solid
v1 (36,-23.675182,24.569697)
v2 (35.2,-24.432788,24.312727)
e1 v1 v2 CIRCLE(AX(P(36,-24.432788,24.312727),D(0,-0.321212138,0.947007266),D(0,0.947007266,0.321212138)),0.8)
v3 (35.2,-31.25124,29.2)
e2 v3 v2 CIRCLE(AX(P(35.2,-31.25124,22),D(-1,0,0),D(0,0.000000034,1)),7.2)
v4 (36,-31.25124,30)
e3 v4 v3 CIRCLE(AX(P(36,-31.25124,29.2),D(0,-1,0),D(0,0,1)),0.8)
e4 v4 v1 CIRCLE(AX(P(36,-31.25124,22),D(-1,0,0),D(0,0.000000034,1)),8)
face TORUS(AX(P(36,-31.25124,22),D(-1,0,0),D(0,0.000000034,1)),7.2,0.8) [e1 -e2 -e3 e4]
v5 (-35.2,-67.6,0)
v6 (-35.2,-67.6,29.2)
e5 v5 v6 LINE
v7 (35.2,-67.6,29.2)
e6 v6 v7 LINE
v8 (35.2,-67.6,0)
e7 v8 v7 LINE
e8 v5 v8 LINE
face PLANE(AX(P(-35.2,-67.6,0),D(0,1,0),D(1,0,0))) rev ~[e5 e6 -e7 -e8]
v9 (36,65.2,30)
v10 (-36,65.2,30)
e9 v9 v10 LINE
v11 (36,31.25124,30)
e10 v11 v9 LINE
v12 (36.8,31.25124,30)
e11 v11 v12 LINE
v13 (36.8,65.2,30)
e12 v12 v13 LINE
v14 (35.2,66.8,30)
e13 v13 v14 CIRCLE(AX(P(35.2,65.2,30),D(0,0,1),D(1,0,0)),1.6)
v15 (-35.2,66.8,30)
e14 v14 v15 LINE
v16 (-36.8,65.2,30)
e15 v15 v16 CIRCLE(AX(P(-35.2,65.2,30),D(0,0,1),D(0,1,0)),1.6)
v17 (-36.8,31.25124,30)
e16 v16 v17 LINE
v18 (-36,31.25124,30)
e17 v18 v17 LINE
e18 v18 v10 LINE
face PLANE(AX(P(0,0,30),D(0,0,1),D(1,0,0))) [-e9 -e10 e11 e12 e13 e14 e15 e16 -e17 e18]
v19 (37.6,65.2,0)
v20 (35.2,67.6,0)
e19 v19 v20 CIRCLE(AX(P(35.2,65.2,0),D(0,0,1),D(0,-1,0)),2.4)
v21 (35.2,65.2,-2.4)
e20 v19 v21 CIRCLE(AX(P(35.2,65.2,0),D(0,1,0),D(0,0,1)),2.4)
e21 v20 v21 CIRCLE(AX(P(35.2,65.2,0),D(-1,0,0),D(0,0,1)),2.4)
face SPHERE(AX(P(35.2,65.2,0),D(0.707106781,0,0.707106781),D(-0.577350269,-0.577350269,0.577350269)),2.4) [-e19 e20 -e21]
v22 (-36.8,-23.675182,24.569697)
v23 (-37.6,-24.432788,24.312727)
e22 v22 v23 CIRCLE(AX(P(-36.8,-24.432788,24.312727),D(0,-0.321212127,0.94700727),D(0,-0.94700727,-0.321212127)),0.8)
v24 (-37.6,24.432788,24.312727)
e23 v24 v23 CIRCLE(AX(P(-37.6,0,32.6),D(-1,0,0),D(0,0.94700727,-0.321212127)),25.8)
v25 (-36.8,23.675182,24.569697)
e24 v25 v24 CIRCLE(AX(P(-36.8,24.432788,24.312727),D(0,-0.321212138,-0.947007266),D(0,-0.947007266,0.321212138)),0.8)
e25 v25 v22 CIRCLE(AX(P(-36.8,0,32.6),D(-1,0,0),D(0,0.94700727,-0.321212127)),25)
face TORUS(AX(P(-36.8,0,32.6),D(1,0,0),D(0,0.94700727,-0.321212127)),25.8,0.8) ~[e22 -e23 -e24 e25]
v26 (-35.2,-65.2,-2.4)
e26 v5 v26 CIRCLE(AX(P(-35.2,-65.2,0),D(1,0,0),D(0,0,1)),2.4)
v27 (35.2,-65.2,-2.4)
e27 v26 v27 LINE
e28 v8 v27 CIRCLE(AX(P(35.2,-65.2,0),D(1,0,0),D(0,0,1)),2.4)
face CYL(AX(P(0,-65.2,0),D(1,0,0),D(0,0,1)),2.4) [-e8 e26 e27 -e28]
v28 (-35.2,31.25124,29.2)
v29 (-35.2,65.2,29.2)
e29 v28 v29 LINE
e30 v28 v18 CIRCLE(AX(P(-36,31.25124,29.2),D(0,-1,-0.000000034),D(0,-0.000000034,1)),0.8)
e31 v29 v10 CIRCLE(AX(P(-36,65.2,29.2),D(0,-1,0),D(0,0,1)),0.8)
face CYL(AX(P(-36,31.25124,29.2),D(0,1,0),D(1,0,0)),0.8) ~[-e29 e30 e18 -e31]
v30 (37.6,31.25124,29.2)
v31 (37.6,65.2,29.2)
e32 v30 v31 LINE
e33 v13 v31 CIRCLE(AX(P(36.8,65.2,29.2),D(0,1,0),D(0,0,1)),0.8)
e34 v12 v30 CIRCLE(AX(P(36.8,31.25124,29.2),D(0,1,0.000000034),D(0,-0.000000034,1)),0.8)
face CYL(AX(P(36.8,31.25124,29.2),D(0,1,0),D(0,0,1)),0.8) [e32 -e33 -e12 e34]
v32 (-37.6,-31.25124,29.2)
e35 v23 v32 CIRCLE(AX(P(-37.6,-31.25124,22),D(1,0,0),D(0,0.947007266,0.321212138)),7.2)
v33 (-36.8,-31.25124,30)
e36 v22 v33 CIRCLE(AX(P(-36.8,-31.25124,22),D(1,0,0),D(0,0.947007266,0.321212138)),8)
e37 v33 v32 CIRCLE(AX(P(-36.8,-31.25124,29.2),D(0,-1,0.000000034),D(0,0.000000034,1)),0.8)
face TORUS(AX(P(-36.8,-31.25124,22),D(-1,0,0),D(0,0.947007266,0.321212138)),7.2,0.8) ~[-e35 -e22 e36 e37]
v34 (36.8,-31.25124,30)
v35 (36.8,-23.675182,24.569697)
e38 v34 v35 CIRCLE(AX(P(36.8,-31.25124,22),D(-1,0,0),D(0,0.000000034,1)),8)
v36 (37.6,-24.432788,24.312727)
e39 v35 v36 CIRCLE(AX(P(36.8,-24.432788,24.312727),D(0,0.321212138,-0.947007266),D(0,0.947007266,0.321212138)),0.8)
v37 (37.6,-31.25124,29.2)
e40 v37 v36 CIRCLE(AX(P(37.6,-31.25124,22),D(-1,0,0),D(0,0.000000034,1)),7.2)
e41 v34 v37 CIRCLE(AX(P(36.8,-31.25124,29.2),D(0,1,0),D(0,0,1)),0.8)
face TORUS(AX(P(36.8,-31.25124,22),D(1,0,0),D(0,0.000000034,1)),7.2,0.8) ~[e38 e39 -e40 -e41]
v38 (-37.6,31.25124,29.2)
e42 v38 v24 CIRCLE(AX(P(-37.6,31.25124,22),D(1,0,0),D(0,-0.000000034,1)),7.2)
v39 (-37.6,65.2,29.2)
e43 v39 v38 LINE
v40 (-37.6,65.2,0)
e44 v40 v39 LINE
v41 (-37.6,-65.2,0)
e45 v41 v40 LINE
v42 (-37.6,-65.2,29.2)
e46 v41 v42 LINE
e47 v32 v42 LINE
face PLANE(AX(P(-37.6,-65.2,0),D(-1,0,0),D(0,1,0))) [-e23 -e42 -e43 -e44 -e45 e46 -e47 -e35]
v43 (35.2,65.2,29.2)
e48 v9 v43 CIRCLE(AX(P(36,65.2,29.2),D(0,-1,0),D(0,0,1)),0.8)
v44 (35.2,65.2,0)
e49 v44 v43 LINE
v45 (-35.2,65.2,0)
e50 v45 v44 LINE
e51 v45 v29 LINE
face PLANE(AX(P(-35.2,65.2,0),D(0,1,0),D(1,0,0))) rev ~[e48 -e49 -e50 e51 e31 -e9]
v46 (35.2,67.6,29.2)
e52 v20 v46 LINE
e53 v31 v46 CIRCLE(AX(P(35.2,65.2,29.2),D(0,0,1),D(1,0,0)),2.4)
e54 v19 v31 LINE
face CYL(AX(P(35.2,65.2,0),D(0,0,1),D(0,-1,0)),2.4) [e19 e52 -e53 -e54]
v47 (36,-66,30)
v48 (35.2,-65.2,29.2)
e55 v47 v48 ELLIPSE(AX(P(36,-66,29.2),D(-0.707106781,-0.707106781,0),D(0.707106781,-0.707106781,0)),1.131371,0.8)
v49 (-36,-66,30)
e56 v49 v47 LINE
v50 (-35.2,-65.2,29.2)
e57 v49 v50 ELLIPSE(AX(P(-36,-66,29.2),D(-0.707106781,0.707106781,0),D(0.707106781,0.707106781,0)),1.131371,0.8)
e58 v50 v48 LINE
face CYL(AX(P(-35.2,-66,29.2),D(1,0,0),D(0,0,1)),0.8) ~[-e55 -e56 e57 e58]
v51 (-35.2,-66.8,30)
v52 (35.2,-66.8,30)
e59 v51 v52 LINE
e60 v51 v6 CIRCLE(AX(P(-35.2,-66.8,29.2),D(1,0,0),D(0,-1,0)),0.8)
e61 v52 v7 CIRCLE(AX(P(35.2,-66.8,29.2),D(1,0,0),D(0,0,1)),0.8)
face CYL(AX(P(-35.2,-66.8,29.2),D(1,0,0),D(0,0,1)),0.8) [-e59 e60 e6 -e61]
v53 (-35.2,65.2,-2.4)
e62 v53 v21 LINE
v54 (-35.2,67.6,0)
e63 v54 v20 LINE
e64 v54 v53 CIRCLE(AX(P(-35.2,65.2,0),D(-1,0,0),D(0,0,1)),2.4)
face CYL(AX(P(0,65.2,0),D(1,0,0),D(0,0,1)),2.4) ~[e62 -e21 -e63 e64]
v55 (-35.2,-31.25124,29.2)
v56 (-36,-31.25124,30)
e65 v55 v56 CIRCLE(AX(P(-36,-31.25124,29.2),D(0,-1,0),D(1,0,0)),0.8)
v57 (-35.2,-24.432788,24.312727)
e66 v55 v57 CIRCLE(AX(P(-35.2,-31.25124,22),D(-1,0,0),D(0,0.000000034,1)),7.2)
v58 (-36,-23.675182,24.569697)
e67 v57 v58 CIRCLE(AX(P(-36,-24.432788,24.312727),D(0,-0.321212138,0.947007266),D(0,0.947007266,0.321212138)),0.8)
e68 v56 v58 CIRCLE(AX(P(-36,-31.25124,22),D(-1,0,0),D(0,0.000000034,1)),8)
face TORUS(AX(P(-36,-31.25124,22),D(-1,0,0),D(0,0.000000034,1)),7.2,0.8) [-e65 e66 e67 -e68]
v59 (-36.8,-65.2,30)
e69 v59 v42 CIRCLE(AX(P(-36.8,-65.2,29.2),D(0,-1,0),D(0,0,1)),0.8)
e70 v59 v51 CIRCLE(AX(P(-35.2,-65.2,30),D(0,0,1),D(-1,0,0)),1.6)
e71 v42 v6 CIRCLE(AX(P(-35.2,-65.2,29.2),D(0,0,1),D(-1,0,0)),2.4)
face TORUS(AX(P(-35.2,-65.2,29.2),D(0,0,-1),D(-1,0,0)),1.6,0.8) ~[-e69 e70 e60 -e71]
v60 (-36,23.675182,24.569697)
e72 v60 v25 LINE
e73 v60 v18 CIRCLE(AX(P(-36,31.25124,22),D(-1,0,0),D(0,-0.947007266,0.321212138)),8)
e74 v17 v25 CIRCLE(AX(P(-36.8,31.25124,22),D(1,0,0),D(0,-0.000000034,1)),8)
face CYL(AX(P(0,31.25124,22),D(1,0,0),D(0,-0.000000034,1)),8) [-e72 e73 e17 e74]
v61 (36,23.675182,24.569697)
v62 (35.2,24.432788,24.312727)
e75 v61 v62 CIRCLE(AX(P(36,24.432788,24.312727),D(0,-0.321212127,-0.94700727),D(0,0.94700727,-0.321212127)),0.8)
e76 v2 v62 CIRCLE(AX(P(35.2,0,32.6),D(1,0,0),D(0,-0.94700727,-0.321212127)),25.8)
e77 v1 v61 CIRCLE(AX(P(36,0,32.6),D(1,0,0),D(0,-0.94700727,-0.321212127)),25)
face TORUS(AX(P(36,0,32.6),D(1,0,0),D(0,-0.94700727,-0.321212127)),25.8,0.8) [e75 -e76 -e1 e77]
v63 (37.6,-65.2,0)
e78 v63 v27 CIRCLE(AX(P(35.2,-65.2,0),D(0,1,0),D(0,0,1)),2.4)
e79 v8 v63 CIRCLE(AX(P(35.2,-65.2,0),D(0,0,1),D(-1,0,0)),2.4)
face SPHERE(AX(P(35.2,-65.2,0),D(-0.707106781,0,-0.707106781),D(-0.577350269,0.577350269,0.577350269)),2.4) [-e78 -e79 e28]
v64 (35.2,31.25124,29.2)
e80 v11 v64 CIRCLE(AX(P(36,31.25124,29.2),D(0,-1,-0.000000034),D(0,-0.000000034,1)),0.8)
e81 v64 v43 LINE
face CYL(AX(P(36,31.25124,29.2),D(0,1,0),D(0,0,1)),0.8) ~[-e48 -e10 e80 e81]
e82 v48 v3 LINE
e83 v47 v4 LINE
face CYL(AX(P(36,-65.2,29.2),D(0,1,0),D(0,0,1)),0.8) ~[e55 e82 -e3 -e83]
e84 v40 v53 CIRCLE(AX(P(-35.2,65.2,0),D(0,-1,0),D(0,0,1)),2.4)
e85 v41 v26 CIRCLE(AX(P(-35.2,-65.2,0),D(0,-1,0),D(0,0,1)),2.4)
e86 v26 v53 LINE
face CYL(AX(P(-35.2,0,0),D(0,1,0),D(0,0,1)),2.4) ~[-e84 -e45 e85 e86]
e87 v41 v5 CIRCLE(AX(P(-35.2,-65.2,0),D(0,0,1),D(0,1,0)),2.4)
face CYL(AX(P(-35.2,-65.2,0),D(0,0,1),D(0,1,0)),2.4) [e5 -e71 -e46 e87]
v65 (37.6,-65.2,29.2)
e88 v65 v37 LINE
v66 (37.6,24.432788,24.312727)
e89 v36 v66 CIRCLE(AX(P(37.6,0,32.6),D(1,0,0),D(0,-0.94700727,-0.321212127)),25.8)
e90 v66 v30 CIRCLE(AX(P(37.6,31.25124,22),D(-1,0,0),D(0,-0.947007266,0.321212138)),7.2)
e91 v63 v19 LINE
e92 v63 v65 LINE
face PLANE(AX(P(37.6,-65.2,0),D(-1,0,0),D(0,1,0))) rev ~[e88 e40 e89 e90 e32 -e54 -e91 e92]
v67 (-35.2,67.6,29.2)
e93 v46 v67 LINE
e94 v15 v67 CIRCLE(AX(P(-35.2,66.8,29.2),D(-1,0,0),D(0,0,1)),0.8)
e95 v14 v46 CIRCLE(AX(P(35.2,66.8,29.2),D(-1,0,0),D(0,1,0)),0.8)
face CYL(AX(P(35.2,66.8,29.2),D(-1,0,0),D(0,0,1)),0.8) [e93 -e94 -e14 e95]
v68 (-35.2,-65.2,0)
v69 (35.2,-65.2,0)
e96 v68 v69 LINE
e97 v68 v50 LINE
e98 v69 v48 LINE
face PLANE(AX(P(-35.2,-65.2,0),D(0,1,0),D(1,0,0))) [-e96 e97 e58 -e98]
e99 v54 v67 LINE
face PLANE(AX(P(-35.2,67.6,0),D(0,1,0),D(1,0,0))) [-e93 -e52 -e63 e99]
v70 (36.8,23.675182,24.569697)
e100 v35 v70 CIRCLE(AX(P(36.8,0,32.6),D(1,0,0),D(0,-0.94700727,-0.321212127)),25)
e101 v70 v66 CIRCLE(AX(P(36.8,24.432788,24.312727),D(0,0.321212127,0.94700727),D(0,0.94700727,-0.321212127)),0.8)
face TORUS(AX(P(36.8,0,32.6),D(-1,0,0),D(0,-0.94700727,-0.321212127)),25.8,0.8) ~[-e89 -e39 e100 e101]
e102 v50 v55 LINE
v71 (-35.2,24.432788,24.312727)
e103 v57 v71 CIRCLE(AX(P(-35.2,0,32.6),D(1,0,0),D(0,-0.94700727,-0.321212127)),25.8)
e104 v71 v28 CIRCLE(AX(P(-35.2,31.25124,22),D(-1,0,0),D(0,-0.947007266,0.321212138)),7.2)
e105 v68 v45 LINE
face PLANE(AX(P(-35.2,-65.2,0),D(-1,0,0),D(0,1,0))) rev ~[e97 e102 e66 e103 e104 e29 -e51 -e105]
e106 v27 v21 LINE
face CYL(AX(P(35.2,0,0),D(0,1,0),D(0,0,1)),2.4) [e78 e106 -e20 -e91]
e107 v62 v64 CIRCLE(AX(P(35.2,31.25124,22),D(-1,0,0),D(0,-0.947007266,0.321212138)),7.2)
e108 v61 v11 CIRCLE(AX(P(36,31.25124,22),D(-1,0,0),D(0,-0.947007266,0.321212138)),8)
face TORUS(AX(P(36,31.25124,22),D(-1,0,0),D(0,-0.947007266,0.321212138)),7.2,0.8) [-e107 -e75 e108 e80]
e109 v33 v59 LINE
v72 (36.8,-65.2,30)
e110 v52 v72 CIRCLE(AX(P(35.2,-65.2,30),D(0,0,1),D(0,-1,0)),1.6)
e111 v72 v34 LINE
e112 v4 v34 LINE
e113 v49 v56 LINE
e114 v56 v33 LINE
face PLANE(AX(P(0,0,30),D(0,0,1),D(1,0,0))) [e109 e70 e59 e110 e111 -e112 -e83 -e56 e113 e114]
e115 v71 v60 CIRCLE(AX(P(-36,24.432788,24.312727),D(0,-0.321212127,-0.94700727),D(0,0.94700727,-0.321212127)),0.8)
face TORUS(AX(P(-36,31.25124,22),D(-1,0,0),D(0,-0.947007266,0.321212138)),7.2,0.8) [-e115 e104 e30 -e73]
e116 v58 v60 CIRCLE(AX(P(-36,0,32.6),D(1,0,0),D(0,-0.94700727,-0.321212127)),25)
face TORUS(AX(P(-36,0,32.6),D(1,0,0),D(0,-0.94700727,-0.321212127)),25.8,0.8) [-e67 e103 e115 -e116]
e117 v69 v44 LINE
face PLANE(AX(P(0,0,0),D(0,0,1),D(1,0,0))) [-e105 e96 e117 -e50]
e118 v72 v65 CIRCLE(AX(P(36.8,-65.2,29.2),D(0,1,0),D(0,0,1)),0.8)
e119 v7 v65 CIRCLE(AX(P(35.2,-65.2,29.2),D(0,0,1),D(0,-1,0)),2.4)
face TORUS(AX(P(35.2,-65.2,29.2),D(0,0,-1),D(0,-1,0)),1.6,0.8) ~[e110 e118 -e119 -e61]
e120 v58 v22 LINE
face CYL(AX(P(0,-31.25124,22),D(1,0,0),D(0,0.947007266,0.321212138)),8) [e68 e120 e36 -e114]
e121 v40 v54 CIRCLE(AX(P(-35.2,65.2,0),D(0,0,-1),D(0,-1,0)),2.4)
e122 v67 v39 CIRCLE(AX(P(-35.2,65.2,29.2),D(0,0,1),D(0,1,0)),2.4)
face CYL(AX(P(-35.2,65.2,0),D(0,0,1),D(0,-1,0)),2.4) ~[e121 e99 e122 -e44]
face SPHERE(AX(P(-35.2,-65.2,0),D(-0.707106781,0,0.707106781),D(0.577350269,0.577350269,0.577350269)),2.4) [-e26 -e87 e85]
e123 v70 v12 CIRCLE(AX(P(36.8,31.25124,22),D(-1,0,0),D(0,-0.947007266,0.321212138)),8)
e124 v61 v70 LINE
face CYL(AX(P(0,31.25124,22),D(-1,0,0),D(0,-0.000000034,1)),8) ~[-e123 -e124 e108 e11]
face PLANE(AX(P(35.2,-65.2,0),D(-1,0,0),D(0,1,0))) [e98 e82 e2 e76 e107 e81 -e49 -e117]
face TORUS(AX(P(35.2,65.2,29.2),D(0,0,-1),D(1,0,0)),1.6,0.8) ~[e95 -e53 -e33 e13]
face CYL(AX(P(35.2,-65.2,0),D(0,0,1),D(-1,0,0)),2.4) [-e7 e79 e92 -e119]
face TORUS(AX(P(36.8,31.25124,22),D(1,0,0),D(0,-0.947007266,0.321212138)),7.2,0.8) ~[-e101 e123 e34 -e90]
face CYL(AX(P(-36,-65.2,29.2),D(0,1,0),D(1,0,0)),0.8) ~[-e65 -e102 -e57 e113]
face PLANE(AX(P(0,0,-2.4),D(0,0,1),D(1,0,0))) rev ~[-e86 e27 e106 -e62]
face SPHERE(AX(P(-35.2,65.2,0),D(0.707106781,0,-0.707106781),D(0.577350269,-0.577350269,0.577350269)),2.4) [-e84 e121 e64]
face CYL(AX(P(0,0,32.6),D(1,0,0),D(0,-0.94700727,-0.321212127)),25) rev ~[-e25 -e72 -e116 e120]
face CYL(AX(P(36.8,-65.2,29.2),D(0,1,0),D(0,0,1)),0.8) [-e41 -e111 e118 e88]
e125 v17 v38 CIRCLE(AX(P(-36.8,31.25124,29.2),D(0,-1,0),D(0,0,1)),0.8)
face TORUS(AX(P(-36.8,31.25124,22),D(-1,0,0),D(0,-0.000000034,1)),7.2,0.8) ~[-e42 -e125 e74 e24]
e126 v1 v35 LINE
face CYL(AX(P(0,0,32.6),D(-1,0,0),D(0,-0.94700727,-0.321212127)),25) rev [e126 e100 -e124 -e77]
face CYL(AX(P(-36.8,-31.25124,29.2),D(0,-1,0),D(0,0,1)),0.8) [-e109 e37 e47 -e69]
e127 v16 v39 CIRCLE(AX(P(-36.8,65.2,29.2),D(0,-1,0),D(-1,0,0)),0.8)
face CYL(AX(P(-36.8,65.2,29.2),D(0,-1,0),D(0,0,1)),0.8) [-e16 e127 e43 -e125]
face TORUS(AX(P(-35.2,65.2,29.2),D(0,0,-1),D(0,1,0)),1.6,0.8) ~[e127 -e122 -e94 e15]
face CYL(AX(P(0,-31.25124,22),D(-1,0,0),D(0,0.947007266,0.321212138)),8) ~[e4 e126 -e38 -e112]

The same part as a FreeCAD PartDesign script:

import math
import FreeCAD as App
import Part
import Sketcher


def edges_at(feature, points):
    """Names of the edges that pass closest to the given points."""
    edges = feature.Shape.Edges
    near = lambda p: min(range(len(edges)), key=lambda i: edges[i].distToShape(Part.Vertex(*p))[0])
    return sorted({f"Edge{near(p) + 1}" for p in points})


def faces_at(feature, points):
    """Names of the faces that lie closest to the given points."""
    faces = feature.Shape.Faces
    near = lambda p: min(range(len(faces)), key=lambda i: faces[i].distToShape(Part.Vertex(*p))[0])
    return sorted({f"Face{near(p) + 1}" for p in points})


def add_polygon(sketch, points):
    """Adds a closed chain of lines whose ends are joined by coincident constraints."""
    first, n = sketch.GeometryCount, len(points)
    for a, b in zip(points, points[1:] + points[:1]):
        sketch.addGeometry(Part.LineSegment(App.Vector(*a, 0), App.Vector(*b, 0)), False)
    for i in range(n):
        sketch.addConstraint(Sketcher.Constraint("Coincident", first + i, 2, first + (i + 1) % n, 1))

doc = App.newDocument("Part")
body = doc.addObject("PartDesign::Body", "Body")

# Sketch on XY plane
sketch1 = body.newObject("Sketcher::SketchObject", "Sketch")
sketch1.AttachmentSupport = (doc.getObject("XY_Plane"), [""])
sketch1.MapMode = "FlatFace"
add_polygon(sketch1, [(-35, 65), (-35, -65), (35, -65), (35, 65)])  # lines 0-3
sketch1.addConstraint(Sketcher.Constraint("Vertical", 0))
sketch1.addConstraint(Sketcher.Constraint("Horizontal", 1))
sketch1.addConstraint(Sketcher.Constraint("Vertical", 2))
sketch1.addConstraint(Sketcher.Constraint("Horizontal", 3))
sketch1.addConstraint(Sketcher.Constraint("Symmetric", 0, 2, 2, 2, -1, 1))
sketch1.addConstraint(Sketcher.Constraint("DistanceX", 1, 1, 1, 2, 70.4))
sketch1.addConstraint(Sketcher.Constraint("DistanceY", 0, 2, 0, 1, 130.4))
pad1 = body.newObject("PartDesign::Pad", "Pad")
pad1.Profile = sketch1
pad1.Length = 30
doc.recompute()

thickness = body.newObject("PartDesign::Thickness", "Thickness")
thickness.Base = (pad1, faces_at(pad1, [(0, 0, 30)]))
thickness.Value = 2.4
thickness.Reversed = False
thickness.Join = "Arc"

# Sketch on YZ plane
sketch2 = body.newObject("Sketcher::SketchObject", "Sketch001")
sketch2.AttachmentSupport = (doc.getObject("YZ_Plane"), [""])
sketch2.MapMode = "FlatFace"
sketch2.addGeometry(Part.ArcOfCircle(Part.Circle(App.Vector(0, 33, 0), App.Vector(0, 0, 1), 25), math.radians(-161), math.radians(-19)), False)
sketch2.addGeometry(Part.ArcOfCircle(Part.Circle(App.Vector(31, 22, 0), App.Vector(0, 0, 1), 8), math.radians(90), math.radians(161)), False)
sketch2.addGeometry(Part.LineSegment(App.Vector(31, 30, 0), App.Vector(-31, 30, 0)), False)
sketch2.addGeometry(Part.ArcOfCircle(Part.Circle(App.Vector(-31, 22, 0), App.Vector(0, 0, 1), 8), math.radians(19), math.radians(90)), False)
sketch2.addConstraint(Sketcher.Constraint("Tangent", 0, 2, 1, 2))
sketch2.addConstraint(Sketcher.Constraint("Tangent", 1, 1, 2, 1))
sketch2.addConstraint(Sketcher.Constraint("Tangent", 2, 2, 3, 2))
sketch2.addConstraint(Sketcher.Constraint("Tangent", 3, 1, 0, 1))
sketch2.addConstraint(Sketcher.Constraint("Horizontal", 2))
sketch2.addConstraint(Sketcher.Constraint("Equal", 1, 3))
sketch2.addConstraint(Sketcher.Constraint("PointOnObject", 0, 3, -2))
sketch2.addConstraint(Sketcher.Constraint("Radius", 0, 25.0))
sketch2.addConstraint(Sketcher.Constraint("Radius", 1, 8.0))
sketch2.addConstraint(Sketcher.Constraint("DistanceY", -1, 1, 1, 3, 22.0))
sketch2.addConstraint(Sketcher.Constraint("DistanceY", -1, 1, 0, 3, 32.6))
pocket1 = body.newObject("PartDesign::Pocket", "Pocket")
pocket1.Profile = sketch2
pocket1.Type = "ThroughAll"
pocket1.Midplane = True
doc.recompute()

fillet = body.newObject("PartDesign::Fillet", "Fillet")
fillet.Base = (pocket1, edges_at(pocket1, [
    (0, -65.2, 30),
    (35.2, -48.226, 30),
    (36.4, -31.251, 30),
    (37.6, -48.226, 30),
    (36.897, -66.897, 30),
    (0, -67.6, 30),
    (-36.897, -66.897, 30),
    (-37.6, -48.226, 30),
    (-36.4, -31.251, 30),
    (-35.2, -48.226, 30),
]))
fillet.Radius = 0.8

doc.recompute()
